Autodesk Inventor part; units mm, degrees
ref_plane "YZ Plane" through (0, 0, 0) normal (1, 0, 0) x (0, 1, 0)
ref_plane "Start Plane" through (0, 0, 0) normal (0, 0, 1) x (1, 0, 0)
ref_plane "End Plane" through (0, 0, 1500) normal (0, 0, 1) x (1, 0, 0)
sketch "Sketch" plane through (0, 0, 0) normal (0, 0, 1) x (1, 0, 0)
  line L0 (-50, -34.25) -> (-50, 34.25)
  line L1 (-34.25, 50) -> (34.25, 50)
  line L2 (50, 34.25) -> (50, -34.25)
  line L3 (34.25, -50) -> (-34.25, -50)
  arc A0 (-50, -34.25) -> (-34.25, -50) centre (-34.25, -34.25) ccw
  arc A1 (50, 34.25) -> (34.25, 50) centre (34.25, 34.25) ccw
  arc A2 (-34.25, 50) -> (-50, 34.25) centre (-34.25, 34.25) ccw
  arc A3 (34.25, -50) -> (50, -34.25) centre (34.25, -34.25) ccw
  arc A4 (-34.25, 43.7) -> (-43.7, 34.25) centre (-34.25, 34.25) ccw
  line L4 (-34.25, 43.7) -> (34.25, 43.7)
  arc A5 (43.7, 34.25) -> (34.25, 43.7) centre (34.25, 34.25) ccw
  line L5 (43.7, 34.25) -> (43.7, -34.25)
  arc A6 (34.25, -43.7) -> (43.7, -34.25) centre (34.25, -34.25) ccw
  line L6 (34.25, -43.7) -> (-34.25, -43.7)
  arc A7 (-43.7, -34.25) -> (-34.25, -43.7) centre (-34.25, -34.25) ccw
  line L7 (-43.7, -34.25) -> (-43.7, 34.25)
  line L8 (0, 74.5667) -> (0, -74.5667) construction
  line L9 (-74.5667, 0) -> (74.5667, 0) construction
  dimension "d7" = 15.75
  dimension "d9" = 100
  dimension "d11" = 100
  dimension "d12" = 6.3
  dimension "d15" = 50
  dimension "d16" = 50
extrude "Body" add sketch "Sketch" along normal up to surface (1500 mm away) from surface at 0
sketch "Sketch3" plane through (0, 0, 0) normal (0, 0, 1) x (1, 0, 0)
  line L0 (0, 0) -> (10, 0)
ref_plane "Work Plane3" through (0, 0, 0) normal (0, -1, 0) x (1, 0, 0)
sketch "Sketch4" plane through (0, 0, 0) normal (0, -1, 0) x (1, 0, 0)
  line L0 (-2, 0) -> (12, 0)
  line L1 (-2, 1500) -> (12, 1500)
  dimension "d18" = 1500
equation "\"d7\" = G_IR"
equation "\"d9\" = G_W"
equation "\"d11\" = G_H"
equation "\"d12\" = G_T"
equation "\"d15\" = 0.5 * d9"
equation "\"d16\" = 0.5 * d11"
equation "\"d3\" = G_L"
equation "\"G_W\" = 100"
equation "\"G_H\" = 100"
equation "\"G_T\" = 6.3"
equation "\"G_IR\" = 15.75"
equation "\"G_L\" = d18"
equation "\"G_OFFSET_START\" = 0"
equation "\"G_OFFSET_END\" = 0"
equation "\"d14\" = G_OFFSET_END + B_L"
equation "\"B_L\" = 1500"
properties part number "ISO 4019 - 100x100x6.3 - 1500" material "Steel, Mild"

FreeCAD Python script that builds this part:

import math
import FreeCAD as App
import Part
import Sketcher
Q = App.Units.Quantity

doc = App.newDocument("Part")
params = doc.addObject("Spreadsheet::Sheet", "Params")
for row, (alias, value) in enumerate([
    ("sketch1_radius", "15.75 mm"),
    ("pad1_length", "1500 mm"),
], start=1):
    params.set(f"A{row}", alias)
    params.set(f"B{row}", "=" + value)
    params.setAlias(f"B{row}", alias)

body = doc.addObject("PartDesign::Body", "Body")

# Sketch on XY plane
sketch1 = body.newObject("Sketcher::SketchObject", "Sketch")
sketch1.AttachmentSupport = (doc.getObject("XY_Plane"), [""])
sketch1.MapMode = "FlatFace"
sketch1.addGeometry(Part.LineSegment(App.Vector(-50, 34, 0), App.Vector(-50, -34, 0)), False)
sketch1.addGeometry(Part.ArcOfCircle(Part.Circle(App.Vector(-34, -34, 0), App.Vector(0, 0, 1), 16), math.radians(180), math.radians(270)), False)
sketch1.addGeometry(Part.LineSegment(App.Vector(-34, -50, 0), App.Vector(34, -50, 0)), False)
sketch1.addGeometry(Part.ArcOfCircle(Part.Circle(App.Vector(34, -34, 0), App.Vector(0, 0, 1), 16), math.radians(-90), math.radians(0)), False)
sketch1.addGeometry(Part.LineSegment(App.Vector(50, -34, 0), App.Vector(50, 34, 0)), False)
sketch1.addGeometry(Part.ArcOfCircle(Part.Circle(App.Vector(34, 34, 0), App.Vector(0, 0, 1), 16), math.radians(0), math.radians(90)), False)
sketch1.addGeometry(Part.LineSegment(App.Vector(34, 50, 0), App.Vector(-34, 50, 0)), False)
sketch1.addGeometry(Part.ArcOfCircle(Part.Circle(App.Vector(-34, 34, 0), App.Vector(0, 0, 1), 16), math.radians(90), math.radians(180)), False)
sketch1.addGeometry(Part.ArcOfCircle(Part.Circle(App.Vector(-34, 34, 0), App.Vector(0, 0, 1), 9), math.radians(90), math.radians(180)), False)
sketch1.addGeometry(Part.LineSegment(App.Vector(-34, 44, 0), App.Vector(34, 44, 0)), False)
sketch1.addGeometry(Part.ArcOfCircle(Part.Circle(App.Vector(34, 34, 0), App.Vector(0, 0, 1), 9), math.radians(0), math.radians(90)), False)
sketch1.addGeometry(Part.LineSegment(App.Vector(44, 34, 0), App.Vector(44, -34, 0)), False)
sketch1.addGeometry(Part.ArcOfCircle(Part.Circle(App.Vector(34, -34, 0), App.Vector(0, 0, 1), 9), math.radians(-90), math.radians(0)), False)
sketch1.addGeometry(Part.LineSegment(App.Vector(34, -44, 0), App.Vector(-34, -44, 0)), False)
sketch1.addGeometry(Part.ArcOfCircle(Part.Circle(App.Vector(-34, -34, 0), App.Vector(0, 0, 1), 9), math.radians(180), math.radians(270)), False)
sketch1.addGeometry(Part.LineSegment(App.Vector(-44, -34, 0), App.Vector(-44, 34, 0)), False)
sketch1.addConstraint(Sketcher.Constraint("Tangent", 0, 2, 1, 1))
sketch1.addConstraint(Sketcher.Constraint("Tangent", 1, 2, 2, 1))
sketch1.addConstraint(Sketcher.Constraint("Tangent", 2, 2, 3, 1))
sketch1.addConstraint(Sketcher.Constraint("Tangent", 3, 2, 4, 1))
sketch1.addConstraint(Sketcher.Constraint("Tangent", 4, 2, 5, 1))
sketch1.addConstraint(Sketcher.Constraint("Tangent", 5, 2, 6, 1))
sketch1.addConstraint(Sketcher.Constraint("Tangent", 6, 2, 7, 1))
sketch1.addConstraint(Sketcher.Constraint("Tangent", 7, 2, 0, 1))
sketch1.addConstraint(Sketcher.Constraint("Tangent", 8, 1, 9, 1))
sketch1.addConstraint(Sketcher.Constraint("Tangent", 9, 2, 10, 2))
sketch1.addConstraint(Sketcher.Constraint("Tangent", 10, 1, 11, 1))
sketch1.addConstraint(Sketcher.Constraint("Tangent", 11, 2, 12, 2))
sketch1.addConstraint(Sketcher.Constraint("Tangent", 12, 1, 13, 1))
sketch1.addConstraint(Sketcher.Constraint("Tangent", 13, 2, 14, 2))
sketch1.addConstraint(Sketcher.Constraint("Tangent", 14, 1, 15, 1))
sketch1.addConstraint(Sketcher.Constraint("Tangent", 15, 2, 8, 2))
sketch1.addConstraint(Sketcher.Constraint("Vertical", 0))
sketch1.addConstraint(Sketcher.Constraint("Horizontal", 2))
sketch1.addConstraint(Sketcher.Constraint("Vertical", 4))
sketch1.addConstraint(Sketcher.Constraint("Horizontal", 6))
sketch1.addConstraint(Sketcher.Constraint("Horizontal", 9))
sketch1.addConstraint(Sketcher.Constraint("Vertical", 11))
sketch1.addConstraint(Sketcher.Constraint("Horizontal", 13))
sketch1.addConstraint(Sketcher.Constraint("Vertical", 15))
sketch1.addConstraint(Sketcher.Constraint("Coincident", 8, 3, 7, 3))
sketch1.addConstraint(Sketcher.Constraint("Coincident", 10, 3, 5, 3))
sketch1.addConstraint(Sketcher.Constraint("Coincident", 12, 3, 3, 3))
sketch1.addConstraint(Sketcher.Constraint("Equal", 1, 3))
sketch1.addConstraint(Sketcher.Constraint("Equal", 3, 5))
sketch1.addConstraint(Sketcher.Constraint("Equal", 5, 7))
sketch1.addConstraint(Sketcher.Constraint("Equal", 12, 14))
sketch1.addConstraint(Sketcher.Constraint("Symmetric", 1, 3, 5, 3, -1, 1))
sketch1.addConstraint(Sketcher.Constraint("Equal", 13, 0))
sketch1.addConstraint(Sketcher.Constraint("Radius", 1, Q("15.75 mm")))
sketch1.addConstraint(Sketcher.Constraint("DistanceX", 0, 2, -1, 1, Q("50 mm")))
sketch1.addConstraint(Sketcher.Constraint("DistanceY", 8, 1, 6, 2, Q("6.3 mm")))
sketch1.setExpression("Constraints[33]", "Params.sketch1_radius")
pad1 = body.newObject("PartDesign::Pad", "Pad")
pad1.Profile = sketch1
pad1.setExpression("Length", "Params.pad1_length")

doc.recompute()
